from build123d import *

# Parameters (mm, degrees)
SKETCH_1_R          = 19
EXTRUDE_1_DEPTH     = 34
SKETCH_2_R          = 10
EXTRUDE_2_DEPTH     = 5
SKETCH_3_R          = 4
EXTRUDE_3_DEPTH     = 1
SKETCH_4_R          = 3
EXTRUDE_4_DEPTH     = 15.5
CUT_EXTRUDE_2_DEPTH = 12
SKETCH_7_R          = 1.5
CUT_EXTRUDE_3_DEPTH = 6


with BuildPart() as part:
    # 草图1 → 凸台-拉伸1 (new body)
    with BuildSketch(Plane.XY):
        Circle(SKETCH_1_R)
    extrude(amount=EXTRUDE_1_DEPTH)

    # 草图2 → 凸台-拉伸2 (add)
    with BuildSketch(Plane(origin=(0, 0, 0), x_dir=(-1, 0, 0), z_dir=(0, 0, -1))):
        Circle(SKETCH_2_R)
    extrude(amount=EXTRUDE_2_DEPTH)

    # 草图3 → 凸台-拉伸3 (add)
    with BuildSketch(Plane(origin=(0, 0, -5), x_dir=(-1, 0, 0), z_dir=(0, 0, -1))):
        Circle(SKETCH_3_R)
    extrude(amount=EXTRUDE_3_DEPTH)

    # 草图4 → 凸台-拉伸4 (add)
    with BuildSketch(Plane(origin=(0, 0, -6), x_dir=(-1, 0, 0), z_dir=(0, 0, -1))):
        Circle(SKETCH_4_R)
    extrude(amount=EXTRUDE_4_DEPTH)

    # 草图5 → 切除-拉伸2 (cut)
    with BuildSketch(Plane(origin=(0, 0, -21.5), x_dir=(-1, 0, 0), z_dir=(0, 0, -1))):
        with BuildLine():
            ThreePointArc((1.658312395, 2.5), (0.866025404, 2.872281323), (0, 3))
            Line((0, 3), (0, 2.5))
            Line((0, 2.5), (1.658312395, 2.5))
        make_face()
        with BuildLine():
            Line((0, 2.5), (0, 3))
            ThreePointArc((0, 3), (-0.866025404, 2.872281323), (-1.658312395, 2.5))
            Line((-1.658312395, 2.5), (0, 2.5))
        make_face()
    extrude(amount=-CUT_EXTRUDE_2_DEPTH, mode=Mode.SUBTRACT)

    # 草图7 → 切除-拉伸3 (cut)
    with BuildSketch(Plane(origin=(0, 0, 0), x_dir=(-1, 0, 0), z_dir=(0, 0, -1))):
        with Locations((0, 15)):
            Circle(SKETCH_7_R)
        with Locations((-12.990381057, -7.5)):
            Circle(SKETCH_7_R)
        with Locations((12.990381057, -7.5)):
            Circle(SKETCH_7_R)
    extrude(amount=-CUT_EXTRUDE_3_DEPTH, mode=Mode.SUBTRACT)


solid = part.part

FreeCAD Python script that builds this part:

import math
import FreeCAD as App
import Part
import Sketcher
Q = App.Units.Quantity

doc = App.newDocument("Part")
body = doc.addObject("PartDesign::Body", "Body")

# Sketch on XY plane
sketch1 = body.newObject("Sketcher::SketchObject", "Sketch")
sketch1.AttachmentSupport = (doc.getObject("XY_Plane"), [""])
sketch1.MapMode = "FlatFace"
sketch1.addGeometry(Part.Circle(App.Vector(0, 0, 0), App.Vector(0, 0, 1), 19), False)
sketch1.addConstraint([
    Sketcher.Constraint("Coincident", 0, 3, -1, 1),
    Sketcher.Constraint("Diameter", 0, Q("38 mm")),
])
pad1 = body.newObject("PartDesign::Pad", "Pad")
pad1.Profile = sketch1
pad1.Length = 34

# Sketch on XY plane
sketch2 = body.newObject("Sketcher::SketchObject", "Sketch001")
sketch2.AttachmentSupport = (doc.getObject("XY_Plane"), [""])
sketch2.MapMode = "FlatFace"
sketch2.addGeometry(Part.Circle(App.Vector(0, 0, 0), App.Vector(0, 0, 1), 10), False)
sketch2.addConstraint([
    Sketcher.Constraint("Coincident", 0, 3, -1, 1),
    Sketcher.Constraint("Diameter", 0, Q("20 mm")),
])
pad2 = body.newObject("PartDesign::Pad", "Pad001")
pad2.Profile = sketch2
pad2.Length = 5
pad2.Reversed = True

# Sketch on XY plane
sketch3 = body.newObject("Sketcher::SketchObject", "Sketch002")
sketch3.AttachmentSupport = (doc.getObject("XY_Plane"), [""])
sketch3.MapMode = "FlatFace"
sketch3.AttachmentOffset = App.Placement(App.Vector(0, 0, -5), App.Rotation())
sketch3.addGeometry(Part.Circle(App.Vector(0, 0, 0), App.Vector(0, 0, 1), 4), False)
sketch3.addConstraint([
    Sketcher.Constraint("Coincident", 0, 3, -1, 1),
    Sketcher.Constraint("Diameter", 0, Q("8 mm")),
])
pad3 = body.newObject("PartDesign::Pad", "Pad002")
pad3.Profile = sketch3
pad3.Length = 1
pad3.Reversed = True

# Sketch on XY plane
sketch4 = body.newObject("Sketcher::SketchObject", "Sketch003")
sketch4.AttachmentSupport = (doc.getObject("XY_Plane"), [""])
sketch4.MapMode = "FlatFace"
sketch4.AttachmentOffset = App.Placement(App.Vector(0, 0, -6), App.Rotation())
sketch4.addGeometry(Part.Circle(App.Vector(0, 0, 0), App.Vector(0, 0, 1), 3), False)
sketch4.addConstraint([
    Sketcher.Constraint("Coincident", 0, 3, -1, 1),
    Sketcher.Constraint("Diameter", 0, Q("6 mm")),
])
pad4 = body.newObject("PartDesign::Pad", "Pad003")
pad4.Profile = sketch4
pad4.Length = 15.5
pad4.Reversed = True

# Sketch on XY plane
sketch5 = body.newObject("Sketcher::SketchObject", "Sketch004")
sketch5.AttachmentSupport = (doc.getObject("XY_Plane"), [""])
sketch5.MapMode = "FlatFace"
sketch5.AttachmentOffset = App.Placement(App.Vector(0, 0, -21.5), App.Rotation())
sketch5.addGeometry([
    Part.ArcOfCircle(Part.Circle(App.Vector(0, 0, 0), App.Vector(0, 0, 1), 3), math.radians(90), math.radians(123.55731)),
    Part.ArcOfCircle(Part.Circle(App.Vector(0, 0, 0), App.Vector(0, 0, 1), 3), math.radians(56.44269), math.radians(90)),
    Part.LineSegment(App.Vector(1.658312, 2.5, 0), App.Vector(-1.658312, 2.5, 0)),
], False)
sketch5.addConstraint([
    Sketcher.Constraint("Tangent", 0, 1, 1, 2),
    Sketcher.Constraint("Coincident", 1, 1, 2, 1),
    Sketcher.Constraint("Coincident", 2, 2, 0, 2),
    Sketcher.Constraint("Horizontal", 2),
    Sketcher.Constraint("Coincident", 0, 3, -1, 1),
    Sketcher.Constraint("Equal", 0, 1),
    Sketcher.Constraint("PointOnObject", 0, 1, -2),
    Sketcher.Constraint("Radius", 0, Q("3 mm")),
    Sketcher.Constraint("DistanceY", -1, 1, 1, 1, Q("2.5 mm")),
])
pocket1 = body.newObject("PartDesign::Pocket", "Pocket")
pocket1.Profile = sketch5
pocket1.Length = 12
pocket1.Reversed = True

# Sketch on XY plane
sketch6 = body.newObject("Sketcher::SketchObject", "Sketch005")
sketch6.AttachmentSupport = (doc.getObject("XY_Plane"), [""])
sketch6.MapMode = "FlatFace"
sketch6.addGeometry([
    Part.Circle(App.Vector(0, 15, 0), App.Vector(0, 0, 1), 1.5),
    Part.Circle(App.Vector(12.990381, -7.5, 0), App.Vector(0, 0, 1), 1.5),
    Part.Circle(App.Vector(-12.990381, -7.5, 0), App.Vector(0, 0, 1), 1.5),
], False)
sketch6.addConstraint([
    Sketcher.Constraint("Equal", 0, 1),
    Sketcher.Constraint("Equal", 1, 2),
    Sketcher.Constraint("Symmetric", 1, 3, 2, 3, -2),
    Sketcher.Constraint("PointOnObject", 0, 3, -2),
    Sketcher.Constraint("Diameter", 0, Q("3 mm")),
    Sketcher.Constraint("DistanceY", -1, 1, 0, 3, Q("15 mm")),
    Sketcher.Constraint("DistanceY", 1, 3, -1, 1, Q("7.5 mm")),
    Sketcher.Constraint("DistanceX", -1, 1, 1, 3, Q("12.990381 mm")),
])
pocket2 = body.newObject("PartDesign::Pocket", "Pocket001")
pocket2.Profile = sketch6
pocket2.Length = 6
pocket2.Reversed = True

doc.recompute()
